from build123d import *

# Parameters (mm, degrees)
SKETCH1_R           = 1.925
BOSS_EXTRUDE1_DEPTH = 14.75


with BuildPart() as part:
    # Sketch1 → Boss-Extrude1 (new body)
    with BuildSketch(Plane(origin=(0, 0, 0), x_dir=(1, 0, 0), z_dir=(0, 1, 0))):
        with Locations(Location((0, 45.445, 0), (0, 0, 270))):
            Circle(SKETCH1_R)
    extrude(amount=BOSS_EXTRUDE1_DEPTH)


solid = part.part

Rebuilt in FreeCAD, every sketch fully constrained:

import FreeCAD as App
import Part
import Sketcher
from FreeCAD import Vector

doc = App.newDocument("Part")
body = doc.addObject("PartDesign::Body", "Body")

# Sketch on XZ plane
sketch1 = doc.addObject("Sketcher::SketchObject", "Sketch")
body.addObject(sketch1)
sketch1.AttachmentSupport = (doc.XZ_Plane, [""])
sketch1.MapMode = "FlatFace"
sketch1.addGeometry(Part.Circle(Vector(0, -45.4, 0), Vector(0, 0, 1), 1.9), False)
sketch1.addConstraint([
    Sketcher.Constraint("PointOnObject", 0, 3, -2),
    Sketcher.Constraint("Diameter", 0, 3.85),
    Sketcher.Constraint("DistanceY", 0, 3, -1, 1, 45.445),
])
pad1 = doc.addObject("PartDesign::Pad", "Pad")
body.addObject(pad1)
pad1.Profile = sketch1
pad1.Length = 14.75
pad1.Reversed = True

doc.recompute()
